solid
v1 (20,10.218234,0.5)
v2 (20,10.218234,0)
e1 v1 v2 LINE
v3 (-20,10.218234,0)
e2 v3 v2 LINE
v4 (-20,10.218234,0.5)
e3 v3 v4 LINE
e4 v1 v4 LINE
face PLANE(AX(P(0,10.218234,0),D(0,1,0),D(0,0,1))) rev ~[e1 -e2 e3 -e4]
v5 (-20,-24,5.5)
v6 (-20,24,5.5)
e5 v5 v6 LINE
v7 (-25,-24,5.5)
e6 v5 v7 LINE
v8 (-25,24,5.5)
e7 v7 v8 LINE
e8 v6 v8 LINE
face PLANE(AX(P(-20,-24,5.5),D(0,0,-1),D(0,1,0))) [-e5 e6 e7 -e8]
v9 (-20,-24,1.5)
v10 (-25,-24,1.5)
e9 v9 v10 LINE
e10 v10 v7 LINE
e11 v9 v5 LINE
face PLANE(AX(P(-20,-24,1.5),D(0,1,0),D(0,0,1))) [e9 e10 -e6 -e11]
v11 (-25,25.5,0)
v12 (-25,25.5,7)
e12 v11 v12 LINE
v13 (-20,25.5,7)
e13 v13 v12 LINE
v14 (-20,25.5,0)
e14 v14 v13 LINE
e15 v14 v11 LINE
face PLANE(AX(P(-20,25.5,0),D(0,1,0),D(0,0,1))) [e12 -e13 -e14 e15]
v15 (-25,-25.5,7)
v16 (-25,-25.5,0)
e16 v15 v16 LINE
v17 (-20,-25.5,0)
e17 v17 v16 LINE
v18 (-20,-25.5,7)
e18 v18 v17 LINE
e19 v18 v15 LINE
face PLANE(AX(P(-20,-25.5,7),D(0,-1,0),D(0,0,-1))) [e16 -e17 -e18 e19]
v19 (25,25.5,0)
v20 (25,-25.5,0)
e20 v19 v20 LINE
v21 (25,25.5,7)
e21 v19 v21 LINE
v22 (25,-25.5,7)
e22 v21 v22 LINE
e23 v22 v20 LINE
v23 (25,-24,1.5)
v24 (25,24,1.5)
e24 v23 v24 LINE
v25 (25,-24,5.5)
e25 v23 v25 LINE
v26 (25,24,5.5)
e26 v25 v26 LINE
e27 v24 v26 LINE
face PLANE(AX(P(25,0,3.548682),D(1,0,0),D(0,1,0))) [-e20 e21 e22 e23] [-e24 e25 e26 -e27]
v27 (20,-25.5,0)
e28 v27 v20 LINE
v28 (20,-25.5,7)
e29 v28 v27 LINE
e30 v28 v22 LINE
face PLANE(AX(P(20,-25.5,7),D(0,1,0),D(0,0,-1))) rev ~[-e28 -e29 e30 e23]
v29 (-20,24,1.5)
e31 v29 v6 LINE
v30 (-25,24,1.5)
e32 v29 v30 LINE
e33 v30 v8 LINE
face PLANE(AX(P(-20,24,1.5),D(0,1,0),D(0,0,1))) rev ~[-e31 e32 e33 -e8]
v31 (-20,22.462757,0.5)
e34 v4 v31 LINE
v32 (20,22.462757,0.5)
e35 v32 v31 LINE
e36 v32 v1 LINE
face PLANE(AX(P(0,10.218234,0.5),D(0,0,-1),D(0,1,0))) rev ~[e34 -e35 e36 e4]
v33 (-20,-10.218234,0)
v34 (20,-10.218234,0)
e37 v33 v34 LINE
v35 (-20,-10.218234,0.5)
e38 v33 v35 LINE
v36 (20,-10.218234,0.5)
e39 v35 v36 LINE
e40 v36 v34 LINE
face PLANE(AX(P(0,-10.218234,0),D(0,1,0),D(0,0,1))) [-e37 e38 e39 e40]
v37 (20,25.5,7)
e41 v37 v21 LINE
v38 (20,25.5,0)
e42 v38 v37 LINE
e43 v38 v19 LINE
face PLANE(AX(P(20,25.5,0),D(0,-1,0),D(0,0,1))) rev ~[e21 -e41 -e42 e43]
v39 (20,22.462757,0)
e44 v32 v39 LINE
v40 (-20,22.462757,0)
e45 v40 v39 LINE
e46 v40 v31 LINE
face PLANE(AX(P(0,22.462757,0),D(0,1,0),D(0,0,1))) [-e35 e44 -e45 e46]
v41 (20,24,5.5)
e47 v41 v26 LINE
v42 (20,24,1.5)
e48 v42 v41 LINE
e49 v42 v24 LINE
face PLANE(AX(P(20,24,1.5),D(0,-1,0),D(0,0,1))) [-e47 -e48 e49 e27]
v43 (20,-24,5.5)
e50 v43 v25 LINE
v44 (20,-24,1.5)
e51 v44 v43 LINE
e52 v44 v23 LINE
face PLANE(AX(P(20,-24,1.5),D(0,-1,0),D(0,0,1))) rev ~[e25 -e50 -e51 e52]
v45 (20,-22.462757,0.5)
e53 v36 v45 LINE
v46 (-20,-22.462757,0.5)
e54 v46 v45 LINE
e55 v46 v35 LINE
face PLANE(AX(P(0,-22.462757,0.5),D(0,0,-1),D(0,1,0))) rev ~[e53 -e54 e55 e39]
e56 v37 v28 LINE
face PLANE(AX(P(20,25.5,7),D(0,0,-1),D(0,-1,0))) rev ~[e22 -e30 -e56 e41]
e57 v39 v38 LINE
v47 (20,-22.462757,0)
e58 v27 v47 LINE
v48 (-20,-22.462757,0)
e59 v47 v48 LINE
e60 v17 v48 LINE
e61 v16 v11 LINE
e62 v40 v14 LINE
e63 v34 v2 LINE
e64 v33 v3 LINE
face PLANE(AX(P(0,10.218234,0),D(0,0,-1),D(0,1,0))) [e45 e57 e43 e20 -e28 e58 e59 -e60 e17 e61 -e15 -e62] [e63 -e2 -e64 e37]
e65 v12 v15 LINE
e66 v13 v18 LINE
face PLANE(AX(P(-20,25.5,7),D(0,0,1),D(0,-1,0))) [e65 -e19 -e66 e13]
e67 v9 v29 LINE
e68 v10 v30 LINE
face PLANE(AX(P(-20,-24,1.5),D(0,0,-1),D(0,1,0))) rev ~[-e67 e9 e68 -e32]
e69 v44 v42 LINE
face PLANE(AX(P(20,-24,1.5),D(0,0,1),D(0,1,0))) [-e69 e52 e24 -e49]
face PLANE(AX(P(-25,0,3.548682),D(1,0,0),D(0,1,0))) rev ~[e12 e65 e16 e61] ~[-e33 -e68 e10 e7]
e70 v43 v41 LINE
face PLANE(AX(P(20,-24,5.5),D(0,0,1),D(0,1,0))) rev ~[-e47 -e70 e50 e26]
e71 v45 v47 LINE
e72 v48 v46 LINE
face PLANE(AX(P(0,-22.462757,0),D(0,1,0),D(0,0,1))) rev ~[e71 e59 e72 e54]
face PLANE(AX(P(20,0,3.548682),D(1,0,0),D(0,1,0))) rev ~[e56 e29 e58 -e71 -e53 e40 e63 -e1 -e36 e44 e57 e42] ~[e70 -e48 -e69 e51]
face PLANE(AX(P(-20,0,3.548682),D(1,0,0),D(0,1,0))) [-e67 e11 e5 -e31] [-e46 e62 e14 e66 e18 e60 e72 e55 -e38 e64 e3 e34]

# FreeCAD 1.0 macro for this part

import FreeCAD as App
import Part
import Sketcher

V = App.Vector
Q = App.Units.Quantity


def add_polygon(sketch, points):
    """Adds a closed chain of lines whose ends are joined by coincident constraints."""
    first, n = sketch.GeometryCount, len(points)
    for a, b in zip(points, points[1:] + points[:1]):
        sketch.addGeometry(Part.LineSegment(App.Vector(*a, 0), App.Vector(*b, 0)), False)
    for i in range(n):
        sketch.addConstraint(Sketcher.Constraint("Coincident", first + i, 2, first + (i + 1) % n, 1))

doc = App.newDocument("Part")
body = doc.addObject("PartDesign::Body", "Body")

sketch1 = doc.addObject("Sketcher::SketchObject", "Sketch")
body.addObject(sketch1)
sketch1.AttachmentSupport = (doc.YZ_Plane, [""])
sketch1.MapMode = "FlatFace"
sketch1.AttachmentOffset = App.Placement(V(0, 0, 20), App.Rotation())
add_polygon(sketch1, [(-25.5, 7), (-25.5, 0), (25.5, 0), (25.5, 7)])
add_polygon(sketch1, [(24, 1.5), (-24, 1.5), (-24, 5.5), (24, 5.5)])
sketch1.addConstraint([
    Sketcher.Constraint("Vertical", 0),
    Sketcher.Constraint("Horizontal", 1),
    Sketcher.Constraint("Vertical", 2),
    Sketcher.Constraint("Horizontal", 3),
    Sketcher.Constraint("Horizontal", 4),
    Sketcher.Constraint("Vertical", 5),
    Sketcher.Constraint("Horizontal", 6),
    Sketcher.Constraint("Vertical", 7),
    Sketcher.Constraint("Symmetric", 0, 2, 1, 2, -1, 1),
    Sketcher.Constraint("DistanceX", 1, 1, 1, 2, Q("51 mm")),
    Sketcher.Constraint("DistanceX", 4, 2, 4, 1, Q("48 mm")),
    Sketcher.Constraint("DistanceY", 0, 2, 0, 1, Q("7 mm")),
    Sketcher.Constraint("DistanceY", 5, 1, 5, 2, Q("4 mm")),
    Sketcher.Constraint("DistanceX", 4, 2, -1, 1, Q("24 mm")),
    Sketcher.Constraint("DistanceY", -1, 1, 4, 2, Q("1.5 mm")),
])
pad1 = doc.addObject("PartDesign::Pad", "Pad")
body.addObject(pad1)
pad1.Profile = sketch1
pad1.Length = 5
body2 = doc.addObject("PartDesign::Body", "Body001")

sketch2 = doc.addObject("Sketcher::SketchObject", "Sketch001")
body2.addObject(sketch2)
sketch2.AttachmentSupport = (doc.getObject("YZ_Plane001"), [""])
sketch2.MapMode = "FlatFace"
sketch2.AttachmentOffset = App.Placement(V(0, 0, -20), App.Rotation())
add_polygon(sketch2, [(-25.5, 7), (-25.5, 0), (25.5, 0), (25.5, 7)])
add_polygon(sketch2, [(24, 1.5), (-24, 1.5), (-24, 5.5), (24, 5.5)])
sketch2.addConstraint([
    Sketcher.Constraint("Vertical", 0),
    Sketcher.Constraint("Horizontal", 1),
    Sketcher.Constraint("Vertical", 2),
    Sketcher.Constraint("Horizontal", 3),
    Sketcher.Constraint("Horizontal", 4),
    Sketcher.Constraint("Vertical", 5),
    Sketcher.Constraint("Horizontal", 6),
    Sketcher.Constraint("Vertical", 7),
    Sketcher.Constraint("Symmetric", 0, 2, 1, 2, -1, 1),
    Sketcher.Constraint("DistanceX", 1, 1, 1, 2, Q("51 mm")),
    Sketcher.Constraint("DistanceX", 4, 2, 4, 1, Q("48 mm")),
    Sketcher.Constraint("DistanceY", 0, 2, 0, 1, Q("7 mm")),
    Sketcher.Constraint("DistanceY", 5, 1, 5, 2, Q("4 mm")),
    Sketcher.Constraint("DistanceX", 4, 2, -1, 1, Q("24 mm")),
    Sketcher.Constraint("DistanceY", -1, 1, 4, 2, Q("1.5 mm")),
])
pad2 = doc.addObject("PartDesign::Pad", "Pad001")
body2.addObject(pad2)
pad2.Profile = sketch2
pad2.Length = 5
pad2.Reversed = True
body.AllowCompound = True
doc.recompute()

boolean = doc.addObject("PartDesign::Boolean", "Boolean")
body.addObject(boolean)
boolean.Type = "Fuse"
boolean.addObjects([body2])

sketch3 = doc.addObject("Sketcher::SketchObject", "Sketch002")
body.addObject(sketch3)
sketch3.AttachmentSupport = (doc.YZ_Plane, [""])
sketch3.MapMode = "FlatFace"
add_polygon(sketch3, [(10.2, 0.5), (10.2, 0), (22.5, 0), (22.5, 0.5)])
add_polygon(sketch3, [(-22.5, 0.5), (-22.5, 0), (-10.2, 0), (-10.2, 0.5)])
sketch3.addConstraint([
    Sketcher.Constraint("Vertical", 0),
    Sketcher.Constraint("Horizontal", 1),
    Sketcher.Constraint("Vertical", 2),
    Sketcher.Constraint("Horizontal", 3),
    Sketcher.Constraint("Vertical", 4),
    Sketcher.Constraint("Horizontal", 5),
    Sketcher.Constraint("Vertical", 6),
    Sketcher.Constraint("Horizontal", 7),
    Sketcher.Constraint("Symmetric", 1, 2, 4, 2, -1, 1),
    Sketcher.Constraint("Symmetric", 0, 2, 5, 2, -2),
    Sketcher.Constraint("Horizontal", 3, 2, 6, 2),
    Sketcher.Constraint("DistanceY", 0, 2, 0, 1, Q("0.5 mm")),
    Sketcher.Constraint("DistanceX", 1, 1, 1, 2, Q("12.244523 mm")),
    Sketcher.Constraint("DistanceX", 4, 2, 0, 2, Q("32.680991 mm")),
])
pad3 = doc.addObject("PartDesign::Pad", "Pad002")
body.addObject(pad3)
pad3.Profile = sketch3
pad3.Type = "TwoLengths"
pad3.Length = 25
pad3.Length2 = 25

doc.recompute()
